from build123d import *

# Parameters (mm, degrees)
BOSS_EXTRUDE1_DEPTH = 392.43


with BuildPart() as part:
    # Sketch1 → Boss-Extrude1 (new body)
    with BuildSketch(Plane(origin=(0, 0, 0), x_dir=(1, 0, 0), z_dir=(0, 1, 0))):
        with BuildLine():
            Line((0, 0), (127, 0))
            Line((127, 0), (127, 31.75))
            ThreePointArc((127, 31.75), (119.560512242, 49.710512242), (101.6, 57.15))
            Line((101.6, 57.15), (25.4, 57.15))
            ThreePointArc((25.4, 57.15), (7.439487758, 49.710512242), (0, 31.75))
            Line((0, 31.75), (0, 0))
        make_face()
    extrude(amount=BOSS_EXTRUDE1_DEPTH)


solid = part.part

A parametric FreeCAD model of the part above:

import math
import FreeCAD as App
import Part
import Sketcher
Q = App.Units.Quantity

doc = App.newDocument("Part")
body = doc.addObject("PartDesign::Body", "Body")

# Sketch on XZ plane
sketch1 = body.newObject("Sketcher::SketchObject", "Sketch")
sketch1.AttachmentSupport = (doc.getObject("XZ_Plane"), [""])
sketch1.MapMode = "FlatFace"
sketch1.addGeometry(Part.LineSegment(App.Vector(0, 0, 0), App.Vector(127, 0, 0)), False)
sketch1.addGeometry(Part.LineSegment(App.Vector(127, 0, 0), App.Vector(127, -32, 0)), False)
sketch1.addGeometry(Part.ArcOfCircle(Part.Circle(App.Vector(102, -32, 0), App.Vector(0, 0, 1), 25), math.radians(-90), math.radians(0)), False)
sketch1.addGeometry(Part.LineSegment(App.Vector(102, -57, 0), App.Vector(25, -57, 0)), False)
sketch1.addGeometry(Part.ArcOfCircle(Part.Circle(App.Vector(25, -32, 0), App.Vector(0, 0, 1), 25), math.radians(180), math.radians(270)), False)
sketch1.addGeometry(Part.LineSegment(App.Vector(0, -32, 0), App.Vector(0, 0, 0)), False)
sketch1.addConstraint(Sketcher.Constraint("Coincident", 0, 2, 1, 1))
sketch1.addConstraint(Sketcher.Constraint("Tangent", 1, 2, 2, 2))
sketch1.addConstraint(Sketcher.Constraint("Tangent", 2, 1, 3, 1))
sketch1.addConstraint(Sketcher.Constraint("Tangent", 3, 2, 4, 2))
sketch1.addConstraint(Sketcher.Constraint("Tangent", 4, 1, 5, 1))
sketch1.addConstraint(Sketcher.Constraint("Coincident", 5, 2, 0, 1))
sketch1.addConstraint(Sketcher.Constraint("Horizontal", 0))
sketch1.addConstraint(Sketcher.Constraint("Vertical", 1))
sketch1.addConstraint(Sketcher.Constraint("Horizontal", 3))
sketch1.addConstraint(Sketcher.Constraint("Vertical", 5))
sketch1.addConstraint(Sketcher.Constraint("Coincident", 5, 2, -1, 1))
sketch1.addConstraint(Sketcher.Constraint("Equal", 2, 4))
sketch1.addConstraint(Sketcher.Constraint("Radius", 2, Q("1 in")))
sketch1.addConstraint(Sketcher.Constraint("DistanceX", 0, 1, 0, 2, Q("5 in")))
sketch1.addConstraint(Sketcher.Constraint("DistanceY", 1, 2, 1, 1, Q("1.25 in")))
pad1 = body.newObject("PartDesign::Pad", "Pad")
pad1.Profile = sketch1
pad1.Length = Q("15.45 in")
pad1.Reversed = True

doc.recompute()
